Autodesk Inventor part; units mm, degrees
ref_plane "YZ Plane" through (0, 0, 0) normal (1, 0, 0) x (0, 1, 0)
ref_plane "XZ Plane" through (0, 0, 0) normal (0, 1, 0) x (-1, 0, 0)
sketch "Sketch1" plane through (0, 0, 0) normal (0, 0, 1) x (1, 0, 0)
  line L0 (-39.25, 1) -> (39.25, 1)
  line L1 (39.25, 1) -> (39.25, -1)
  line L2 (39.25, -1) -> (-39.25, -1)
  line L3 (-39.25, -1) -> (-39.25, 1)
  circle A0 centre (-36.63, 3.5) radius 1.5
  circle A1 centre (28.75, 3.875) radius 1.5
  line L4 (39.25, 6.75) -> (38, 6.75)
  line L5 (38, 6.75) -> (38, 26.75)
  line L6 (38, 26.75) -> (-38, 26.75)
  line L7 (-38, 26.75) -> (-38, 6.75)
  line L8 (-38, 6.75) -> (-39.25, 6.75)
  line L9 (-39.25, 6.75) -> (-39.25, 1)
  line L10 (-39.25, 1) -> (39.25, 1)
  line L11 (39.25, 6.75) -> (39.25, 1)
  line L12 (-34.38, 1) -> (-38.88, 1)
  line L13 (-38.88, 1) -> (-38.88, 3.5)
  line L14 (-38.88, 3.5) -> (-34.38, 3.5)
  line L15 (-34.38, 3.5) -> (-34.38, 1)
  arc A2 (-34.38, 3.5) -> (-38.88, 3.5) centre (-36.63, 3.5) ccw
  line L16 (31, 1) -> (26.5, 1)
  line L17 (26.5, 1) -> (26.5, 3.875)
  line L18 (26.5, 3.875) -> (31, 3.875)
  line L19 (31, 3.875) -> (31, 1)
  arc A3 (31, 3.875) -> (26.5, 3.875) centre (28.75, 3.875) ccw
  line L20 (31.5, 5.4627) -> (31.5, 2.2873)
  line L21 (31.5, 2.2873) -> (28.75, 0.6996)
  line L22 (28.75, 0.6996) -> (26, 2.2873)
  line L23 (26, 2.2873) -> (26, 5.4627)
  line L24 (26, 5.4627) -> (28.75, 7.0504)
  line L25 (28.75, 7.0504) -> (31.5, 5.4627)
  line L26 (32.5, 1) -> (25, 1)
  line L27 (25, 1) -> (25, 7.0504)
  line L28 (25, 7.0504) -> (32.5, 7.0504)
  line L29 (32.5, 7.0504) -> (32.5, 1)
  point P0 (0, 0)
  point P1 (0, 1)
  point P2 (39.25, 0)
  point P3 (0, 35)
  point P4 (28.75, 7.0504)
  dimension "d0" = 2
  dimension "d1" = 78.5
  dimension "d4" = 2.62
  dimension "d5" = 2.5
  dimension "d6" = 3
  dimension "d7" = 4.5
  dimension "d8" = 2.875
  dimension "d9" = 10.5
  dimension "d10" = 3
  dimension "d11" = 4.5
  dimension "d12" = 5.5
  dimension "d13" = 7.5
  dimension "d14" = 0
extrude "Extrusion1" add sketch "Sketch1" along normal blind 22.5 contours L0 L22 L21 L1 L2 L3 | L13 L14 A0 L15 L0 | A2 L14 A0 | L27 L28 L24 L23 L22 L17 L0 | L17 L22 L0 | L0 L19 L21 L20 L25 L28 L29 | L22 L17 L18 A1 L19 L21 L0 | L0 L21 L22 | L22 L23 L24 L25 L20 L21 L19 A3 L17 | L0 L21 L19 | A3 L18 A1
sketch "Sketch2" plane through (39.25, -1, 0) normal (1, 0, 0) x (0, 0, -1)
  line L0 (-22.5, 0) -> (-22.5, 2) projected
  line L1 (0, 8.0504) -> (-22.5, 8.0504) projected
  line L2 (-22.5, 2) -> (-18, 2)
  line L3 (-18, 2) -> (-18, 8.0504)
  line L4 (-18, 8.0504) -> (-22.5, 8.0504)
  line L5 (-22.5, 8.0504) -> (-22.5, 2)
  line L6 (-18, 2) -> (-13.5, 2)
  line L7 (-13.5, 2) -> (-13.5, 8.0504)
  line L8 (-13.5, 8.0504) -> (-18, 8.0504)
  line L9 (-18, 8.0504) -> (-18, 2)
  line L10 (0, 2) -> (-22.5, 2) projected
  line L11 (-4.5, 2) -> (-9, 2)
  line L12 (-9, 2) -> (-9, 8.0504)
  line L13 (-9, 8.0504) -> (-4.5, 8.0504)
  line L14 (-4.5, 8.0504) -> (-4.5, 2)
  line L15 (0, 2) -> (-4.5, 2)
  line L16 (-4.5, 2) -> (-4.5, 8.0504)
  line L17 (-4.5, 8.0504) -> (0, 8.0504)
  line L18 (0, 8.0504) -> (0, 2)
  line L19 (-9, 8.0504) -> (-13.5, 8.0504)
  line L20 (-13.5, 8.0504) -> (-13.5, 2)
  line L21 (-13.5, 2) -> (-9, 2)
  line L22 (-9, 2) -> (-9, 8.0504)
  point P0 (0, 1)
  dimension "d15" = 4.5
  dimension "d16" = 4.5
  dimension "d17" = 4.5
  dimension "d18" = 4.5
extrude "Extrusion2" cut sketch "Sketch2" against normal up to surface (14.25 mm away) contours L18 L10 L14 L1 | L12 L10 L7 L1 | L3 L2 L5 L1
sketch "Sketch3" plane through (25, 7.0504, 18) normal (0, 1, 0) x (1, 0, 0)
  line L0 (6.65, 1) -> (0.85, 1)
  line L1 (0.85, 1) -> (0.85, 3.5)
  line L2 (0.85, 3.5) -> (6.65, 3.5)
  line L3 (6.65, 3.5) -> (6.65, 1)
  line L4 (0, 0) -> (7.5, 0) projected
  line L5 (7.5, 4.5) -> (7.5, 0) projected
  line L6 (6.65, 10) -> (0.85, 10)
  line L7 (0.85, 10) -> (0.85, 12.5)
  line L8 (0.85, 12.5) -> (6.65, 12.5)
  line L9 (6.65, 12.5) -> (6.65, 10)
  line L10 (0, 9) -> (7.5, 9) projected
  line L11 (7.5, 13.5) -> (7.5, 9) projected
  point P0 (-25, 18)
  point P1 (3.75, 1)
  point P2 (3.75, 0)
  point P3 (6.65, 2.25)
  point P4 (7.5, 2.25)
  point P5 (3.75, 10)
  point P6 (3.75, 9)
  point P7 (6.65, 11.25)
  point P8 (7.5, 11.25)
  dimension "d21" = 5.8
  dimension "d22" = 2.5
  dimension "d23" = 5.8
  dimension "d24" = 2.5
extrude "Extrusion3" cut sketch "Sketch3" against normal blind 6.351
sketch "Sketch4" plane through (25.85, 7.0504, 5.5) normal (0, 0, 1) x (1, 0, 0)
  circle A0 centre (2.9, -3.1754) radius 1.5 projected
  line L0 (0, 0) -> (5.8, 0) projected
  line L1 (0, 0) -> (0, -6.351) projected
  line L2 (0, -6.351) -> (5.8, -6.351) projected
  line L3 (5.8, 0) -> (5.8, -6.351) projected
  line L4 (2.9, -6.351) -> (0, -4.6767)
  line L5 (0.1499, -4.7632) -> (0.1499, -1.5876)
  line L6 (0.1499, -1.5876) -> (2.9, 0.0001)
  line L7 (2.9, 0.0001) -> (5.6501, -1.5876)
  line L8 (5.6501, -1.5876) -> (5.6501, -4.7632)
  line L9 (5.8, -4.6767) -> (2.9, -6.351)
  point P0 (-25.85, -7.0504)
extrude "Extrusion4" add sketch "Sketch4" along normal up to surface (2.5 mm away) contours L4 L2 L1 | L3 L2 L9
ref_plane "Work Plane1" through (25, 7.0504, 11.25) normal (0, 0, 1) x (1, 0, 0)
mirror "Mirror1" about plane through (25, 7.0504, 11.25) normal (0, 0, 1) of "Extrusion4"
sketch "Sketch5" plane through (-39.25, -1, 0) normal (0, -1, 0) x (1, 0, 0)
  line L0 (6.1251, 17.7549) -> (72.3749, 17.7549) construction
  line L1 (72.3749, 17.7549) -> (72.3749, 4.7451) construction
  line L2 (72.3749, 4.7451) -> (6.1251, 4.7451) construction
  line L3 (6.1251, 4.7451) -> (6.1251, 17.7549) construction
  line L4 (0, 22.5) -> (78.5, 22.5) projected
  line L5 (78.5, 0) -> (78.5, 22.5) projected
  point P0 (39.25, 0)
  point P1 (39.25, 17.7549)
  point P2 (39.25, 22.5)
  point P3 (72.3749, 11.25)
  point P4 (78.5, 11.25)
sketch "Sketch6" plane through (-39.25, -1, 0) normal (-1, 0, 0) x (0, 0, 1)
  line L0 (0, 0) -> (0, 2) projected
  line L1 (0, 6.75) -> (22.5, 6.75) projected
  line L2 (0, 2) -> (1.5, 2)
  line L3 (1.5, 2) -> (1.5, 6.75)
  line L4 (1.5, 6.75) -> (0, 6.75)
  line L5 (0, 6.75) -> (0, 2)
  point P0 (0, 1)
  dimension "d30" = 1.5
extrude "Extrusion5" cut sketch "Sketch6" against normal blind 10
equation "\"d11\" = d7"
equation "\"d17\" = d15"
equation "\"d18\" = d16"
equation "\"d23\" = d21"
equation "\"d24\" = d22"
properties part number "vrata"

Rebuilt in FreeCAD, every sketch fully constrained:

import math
import FreeCAD as App
import Part
import Sketcher

V = App.Vector
Q = App.Units.Quantity


def add_polygon(sketch, points):
    """Adds a closed chain of lines whose ends are joined by coincident constraints."""
    first, n = sketch.GeometryCount, len(points)
    for a, b in zip(points, points[1:] + points[:1]):
        sketch.addGeometry(Part.LineSegment(App.Vector(*a, 0), App.Vector(*b, 0)), False)
    for i in range(n):
        sketch.addConstraint(Sketcher.Constraint("Coincident", first + i, 2, first + (i + 1) % n, 1))

doc = App.newDocument("Part")
body = doc.addObject("PartDesign::Body", "Body")

# Sketch on XY plane
sketch1 = body.newObject("Sketcher::SketchObject", "Sketch")
sketch1.AttachmentSupport = (doc.getObject("XY_Plane"), [""])
sketch1.MapMode = "FlatFace"
sketch1.addGeometry(Part.LineSegment(V(-38.88, 1, 0), V(-39.25, 1, 0)), False)
sketch1.addGeometry(Part.LineSegment(V(-39.25, 1, 0), V(-39.25, -1, 0)), False)
sketch1.addGeometry(Part.LineSegment(V(-39.25, -1, 0), V(39.25, -1, 0)), False)
sketch1.addGeometry(Part.LineSegment(V(39.25, -1, 0), V(39.25, 1, 0)), False)
sketch1.addGeometry(Part.LineSegment(V(39.25, 1, 0), V(32.5, 1, 0)), False)
sketch1.addGeometry(Part.LineSegment(V(32.5, 1, 0), V(32.5, 7.05, 0)), False)
sketch1.addGeometry(Part.LineSegment(V(32.5, 7.05, 0), V(25, 7.05, 0)), False)
sketch1.addGeometry(Part.LineSegment(V(25, 7.05, 0), V(25, 1, 0)), False)
sketch1.addGeometry(Part.LineSegment(V(25, 1, 0), V(-34.38, 1, 0)), False)
sketch1.addGeometry(Part.LineSegment(V(-34.38, 1, 0), V(-34.38, 3.5, 0)), False)
sketch1.addGeometry(Part.ArcOfCircle(Part.Circle(V(-36.63, 3.5, 0), V(0, 0, 1), 2.25), math.radians(0), math.radians(180)), False)
sketch1.addGeometry(Part.LineSegment(V(-38.88, 3.5, 0), V(-38.88, 1, 0)), False)
sketch1.addGeometry(Part.Circle(V(-36.63, 3.5, 0), V(0, 0, 1), 1.5), False)
sketch1.addGeometry(Part.Circle(V(28.75, 3.88, 0), V(0, 0, 1), 1.5), False)
sketch1.addConstraint(Sketcher.Constraint("Coincident", 0, 2, 1, 1))
sketch1.addConstraint(Sketcher.Constraint("Coincident", 1, 2, 2, 1))
sketch1.addConstraint(Sketcher.Constraint("Coincident", 2, 2, 3, 1))
sketch1.addConstraint(Sketcher.Constraint("Coincident", 3, 2, 4, 1))
sketch1.addConstraint(Sketcher.Constraint("Coincident", 4, 2, 5, 1))
sketch1.addConstraint(Sketcher.Constraint("Coincident", 5, 2, 6, 1))
sketch1.addConstraint(Sketcher.Constraint("Coincident", 6, 2, 7, 1))
sketch1.addConstraint(Sketcher.Constraint("Coincident", 7, 2, 8, 1))
sketch1.addConstraint(Sketcher.Constraint("Coincident", 8, 2, 9, 1))
sketch1.addConstraint(Sketcher.Constraint("Tangent", 9, 2, 10, 1))
sketch1.addConstraint(Sketcher.Constraint("Tangent", 10, 2, 11, 1))
sketch1.addConstraint(Sketcher.Constraint("Coincident", 11, 2, 0, 1))
sketch1.addConstraint(Sketcher.Constraint("Horizontal", 0))
sketch1.addConstraint(Sketcher.Constraint("Vertical", 1))
sketch1.addConstraint(Sketcher.Constraint("Horizontal", 2))
sketch1.addConstraint(Sketcher.Constraint("Vertical", 3))
sketch1.addConstraint(Sketcher.Constraint("Horizontal", 4))
sketch1.addConstraint(Sketcher.Constraint("Vertical", 5))
sketch1.addConstraint(Sketcher.Constraint("Horizontal", 6))
sketch1.addConstraint(Sketcher.Constraint("Vertical", 7))
sketch1.addConstraint(Sketcher.Constraint("Horizontal", 8))
sketch1.addConstraint(Sketcher.Constraint("Vertical", 9))
sketch1.addConstraint(Sketcher.Constraint("Vertical", 11))
sketch1.addConstraint(Sketcher.Constraint("Coincident", 12, 3, 10, 3))
sketch1.addConstraint(Sketcher.Constraint("Equal", 12, 13))
sketch1.addConstraint(Sketcher.Constraint("Symmetric", 0, 2, 2, 2, -1, 1))
sketch1.addConstraint(Sketcher.Constraint("Horizontal", 0, 2, 3, 2))
sketch1.addConstraint(Sketcher.Constraint("Horizontal", 4, 2, 7, 2))
sketch1.addConstraint(Sketcher.Constraint("Diameter", 12, 3.0))
sketch1.addConstraint(Sketcher.Constraint("DistanceY", 1, 2, 1, 1, 2.0))
sketch1.addConstraint(Sketcher.Constraint("Radius", 10, 2.25))
sketch1.addConstraint(Sketcher.Constraint("DistanceX", 2, 1, 2, 2, 78.5))
sketch1.addConstraint(Sketcher.Constraint("DistanceX", 6, 2, 6, 1, 7.5))
sketch1.addConstraint(Sketcher.Constraint("DistanceY", 9, 1, 9, 2, 2.5))
sketch1.addConstraint(Sketcher.Constraint("DistanceX", 13, 3, 2, 2, 10.5))
sketch1.addConstraint(Sketcher.Constraint("DistanceX", 0, 2, 10, 3, 2.62))
sketch1.addConstraint(Sketcher.Constraint("DistanceX", -1, 1, 6, 2, 25.0))
sketch1.addConstraint(Sketcher.Constraint("DistanceY", 0, 2, 13, 3, 2.875))
sketch1.addConstraint(Sketcher.Constraint("DistanceY", 5, 1, 5, 2, 6.0504))
pad1 = body.newObject("PartDesign::Pad", "Pad")
pad1.Profile = sketch1
pad1.Length = 22.5

# Sketch on YZ plane
sketch2 = body.newObject("Sketcher::SketchObject", "Sketch001")
sketch2.AttachmentSupport = (doc.getObject("YZ_Plane"), [""])
sketch2.MapMode = "FlatFace"
sketch2.AttachmentOffset = App.Placement(V(0, 0, 39.25), App.Rotation())
add_polygon(sketch2, [(1, 0), (7.1, 0), (7.1, 4.5), (1, 4.5)])  # lines 0-3
add_polygon(sketch2, [(1, 9), (7.1, 9), (7.1, 13.5), (1, 13.5)])  # lines 4-7
add_polygon(sketch2, [(1, 18), (7.1, 18), (7.1, 22.5), (1, 22.5)])  # lines 8-11
sketch2.addConstraint(Sketcher.Constraint("Horizontal", 0))
sketch2.addConstraint(Sketcher.Constraint("Vertical", 1))
sketch2.addConstraint(Sketcher.Constraint("Horizontal", 2))
sketch2.addConstraint(Sketcher.Constraint("Vertical", 3))
sketch2.addConstraint(Sketcher.Constraint("Horizontal", 4))
sketch2.addConstraint(Sketcher.Constraint("Vertical", 5))
sketch2.addConstraint(Sketcher.Constraint("Horizontal", 6))
sketch2.addConstraint(Sketcher.Constraint("Vertical", 7))
sketch2.addConstraint(Sketcher.Constraint("Horizontal", 8))
sketch2.addConstraint(Sketcher.Constraint("Vertical", 9))
sketch2.addConstraint(Sketcher.Constraint("Horizontal", 10))
sketch2.addConstraint(Sketcher.Constraint("Vertical", 11))
sketch2.addConstraint(Sketcher.Constraint("PointOnObject", 0, 2, -1))
sketch2.addConstraint(Sketcher.Constraint("Vertical", 1, 2, 4, 2))
sketch2.addConstraint(Sketcher.Constraint("Vertical", 3, 2, 6, 2))
sketch2.addConstraint(Sketcher.Constraint("Vertical", 5, 2, 8, 2))
sketch2.addConstraint(Sketcher.Constraint("Vertical", 7, 2, 10, 2))
sketch2.addConstraint(Sketcher.Constraint("Equal", 3, 5))
sketch2.addConstraint(Sketcher.Constraint("Equal", 7, 9))
sketch2.addConstraint(Sketcher.Constraint("DistanceY", 1, 1, 1, 2, 4.5))
sketch2.addConstraint(Sketcher.Constraint("DistanceY", 1, 2, 4, 2, 4.5))
sketch2.addConstraint(Sketcher.Constraint("DistanceY", 5, 2, 8, 2, 4.5))
sketch2.addConstraint(Sketcher.Constraint("DistanceX", -1, 1, 2, 2, 1.0))
sketch2.addConstraint(Sketcher.Constraint("DistanceX", 0, 1, 0, 2, 6.0504))
pocket1 = body.newObject("PartDesign::Pocket", "Pocket")
pocket1.Profile = sketch2
pocket1.Length = 14.25

# Sketch on XZ plane
sketch3 = body.newObject("Sketcher::SketchObject", "Sketch002")
sketch3.AttachmentSupport = (doc.getObject("XZ_Plane"), [""])
sketch3.MapMode = "FlatFace"
sketch3.AttachmentOffset = App.Placement(V(0, 0, -7.0504), App.Rotation())
add_polygon(sketch3, [(25.9, 17), (31.6, 17), (31.6, 14.5), (25.9, 14.5)])  # lines 0-3
add_polygon(sketch3, [(25.9, 8), (31.6, 8), (31.6, 5.5), (25.9, 5.5)])  # lines 4-7
sketch3.addConstraint(Sketcher.Constraint("Horizontal", 0))
sketch3.addConstraint(Sketcher.Constraint("Vertical", 1))
sketch3.addConstraint(Sketcher.Constraint("Horizontal", 2))
sketch3.addConstraint(Sketcher.Constraint("Vertical", 3))
sketch3.addConstraint(Sketcher.Constraint("Horizontal", 4))
sketch3.addConstraint(Sketcher.Constraint("Vertical", 5))
sketch3.addConstraint(Sketcher.Constraint("Horizontal", 6))
sketch3.addConstraint(Sketcher.Constraint("Vertical", 7))
sketch3.addConstraint(Sketcher.Constraint("Vertical", 1, 2, 4, 2))
sketch3.addConstraint(Sketcher.Constraint("Vertical", 3, 2, 6, 2))
sketch3.addConstraint(Sketcher.Constraint("Equal", 3, 5))
sketch3.addConstraint(Sketcher.Constraint("DistanceX", 0, 1, 0, 2, 5.8))
sketch3.addConstraint(Sketcher.Constraint("DistanceY", 1, 2, 1, 1, 2.5))
sketch3.addConstraint(Sketcher.Constraint("DistanceY", -1, 1, 0, 2, 17.0))
sketch3.addConstraint(Sketcher.Constraint("DistanceY", -1, 1, 4, 2, 8.0))
sketch3.addConstraint(Sketcher.Constraint("DistanceX", -1, 1, 0, 2, 31.65))
pocket2 = body.newObject("PartDesign::Pocket", "Pocket001")
pocket2.Profile = sketch3
pocket2.Length = 6.351
pocket2.Reversed = True

# Sketch on XY plane
sketch4 = body.newObject("Sketcher::SketchObject", "Sketch003")
sketch4.AttachmentSupport = (doc.getObject("XY_Plane"), [""])
sketch4.MapMode = "FlatFace"
sketch4.AttachmentOffset = App.Placement(V(0, 0, 5.5), App.Rotation())
add_polygon(sketch4, [(28.8, 0.7), (25.9, 2.4), (25.9, 0.7)])  # lines 0-2
add_polygon(sketch4, [(31.6, 0.7), (31.6, 2.4), (28.8, 0.7)])  # lines 3-5
sketch4.addConstraint(Sketcher.Constraint("Vertical", 1))
sketch4.addConstraint(Sketcher.Constraint("Horizontal", 2))
sketch4.addConstraint(Sketcher.Constraint("Vertical", 3))
sketch4.addConstraint(Sketcher.Constraint("Horizontal", 5))
sketch4.addConstraint(Sketcher.Constraint("Coincident", 4, 2, 2, 2))
sketch4.addConstraint(Sketcher.Constraint("Horizontal", 0, 2, 3, 2))
sketch4.addConstraint(Sketcher.Constraint("Equal", 2, 5))
sketch4.addConstraint(Sketcher.Constraint("Angle", 0, Q("150.0002 deg")))
sketch4.addConstraint(Sketcher.Constraint("DistanceX", 2, 1, 2, 2, 2.9))
sketch4.addConstraint(Sketcher.Constraint("DistanceX", -1, 1, 0, 2, 25.85))
sketch4.addConstraint(Sketcher.Constraint("DistanceY", -1, 1, 0, 2, 2.3737))
pad2 = body.newObject("PartDesign::Pad", "Pad001")
pad2.Profile = sketch4
pad2.Length = 2.5
doc.recompute()

datumplane = body.newObject("PartDesign::Plane", "DatumPlane")
datumplane.AttachmentSupport = (doc.getObject("XY_Plane"), [""])
datumplane.MapMode = "FlatFace"
datumplane.AttachmentOffset = App.Placement(V(0, 0, 11.25), App.Rotation())
mirrored = body.newObject("PartDesign::Mirrored", "Mirrored")
mirrored.Originals = [pad2]
mirrored.MirrorPlane = (datumplane, [""])
body.Tip = mirrored

# Sketch on YZ plane
sketch5 = body.newObject("Sketcher::SketchObject", "Sketch004")
sketch5.AttachmentSupport = (doc.getObject("YZ_Plane"), [""])
sketch5.MapMode = "FlatFace"
sketch5.AttachmentOffset = App.Placement(V(0, 0, -39.25), App.Rotation())
add_polygon(sketch5, [(5.8, 1.5), (5.8, 0), (1, 0), (1, 1.5)])  # lines 0-3
sketch5.addConstraint(Sketcher.Constraint("Vertical", 0))
sketch5.addConstraint(Sketcher.Constraint("Horizontal", 1))
sketch5.addConstraint(Sketcher.Constraint("Vertical", 2))
sketch5.addConstraint(Sketcher.Constraint("Horizontal", 3))
sketch5.addConstraint(Sketcher.Constraint("PointOnObject", 0, 2, -1))
sketch5.addConstraint(Sketcher.Constraint("DistanceY", 0, 2, 0, 1, 1.5))
sketch5.addConstraint(Sketcher.Constraint("DistanceX", -1, 1, 1, 2, 1.0))
sketch5.addConstraint(Sketcher.Constraint("DistanceX", 1, 2, 1, 1, 4.75))
pocket3 = body.newObject("PartDesign::Pocket", "Pocket002")
pocket3.Profile = sketch5
pocket3.Length = 10
pocket3.Reversed = True

doc.recompute()
